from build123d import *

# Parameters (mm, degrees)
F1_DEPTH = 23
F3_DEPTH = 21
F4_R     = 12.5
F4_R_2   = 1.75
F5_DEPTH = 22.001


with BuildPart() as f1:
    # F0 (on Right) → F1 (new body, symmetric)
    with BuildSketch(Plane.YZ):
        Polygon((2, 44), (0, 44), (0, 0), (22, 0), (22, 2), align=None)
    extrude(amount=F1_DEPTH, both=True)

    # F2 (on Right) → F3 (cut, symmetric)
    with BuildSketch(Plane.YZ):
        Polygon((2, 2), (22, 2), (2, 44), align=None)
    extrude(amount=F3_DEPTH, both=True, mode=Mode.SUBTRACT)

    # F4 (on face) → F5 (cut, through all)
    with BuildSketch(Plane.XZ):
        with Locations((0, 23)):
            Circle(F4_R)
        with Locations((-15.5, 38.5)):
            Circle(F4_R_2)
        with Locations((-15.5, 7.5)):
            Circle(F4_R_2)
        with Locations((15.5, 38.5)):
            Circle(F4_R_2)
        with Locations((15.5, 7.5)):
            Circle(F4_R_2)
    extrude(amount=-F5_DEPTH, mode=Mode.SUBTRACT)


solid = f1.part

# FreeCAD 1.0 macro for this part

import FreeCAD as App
import Part
import Sketcher
from FreeCAD import Vector


def add_polygon(sketch, points):
    """Adds a closed chain of lines whose ends are joined by coincident constraints."""
    first, n = sketch.GeometryCount, len(points)
    for a, b in zip(points, points[1:] + points[:1]):
        sketch.addGeometry(Part.LineSegment(App.Vector(*a, 0), App.Vector(*b, 0)), False)
    for i in range(n):
        sketch.addConstraint(Sketcher.Constraint("Coincident", first + i, 2, first + (i + 1) % n, 1))

doc = App.newDocument("Part")
body = doc.addObject("PartDesign::Body", "Body")

# Sketch on YZ plane
sketch1 = doc.addObject("Sketcher::SketchObject", "Sketch")
body.addObject(sketch1)
sketch1.AttachmentSupport = (doc.YZ_Plane, [""])
sketch1.MapMode = "FlatFace"
add_polygon(sketch1, [(2, 44), (0, 44), (0, 0), (22, 0), (22, 2)])  # lines 0-4
sketch1.addConstraint([
    Sketcher.Constraint("Horizontal", 0),
    Sketcher.Constraint("Vertical", 1),
    Sketcher.Constraint("Horizontal", 2),
    Sketcher.Constraint("Vertical", 3),
    Sketcher.Constraint("Coincident", 1, 2, -1, 1),
    Sketcher.Constraint("Equal", 0, 3),
    Sketcher.Constraint("DistanceX", 0, 2, 0, 1, 2.0),
    Sketcher.Constraint("DistanceX", 2, 1, 2, 2, 22.0),
    Sketcher.Constraint("DistanceY", 1, 2, 1, 1, 44.0),
])
pad1 = doc.addObject("PartDesign::Pad", "Pad")
body.addObject(pad1)
pad1.Profile = sketch1
pad1.Length = 46
pad1.Midplane = True

# Sketch on YZ plane
sketch2 = doc.addObject("Sketcher::SketchObject", "Sketch001")
body.addObject(sketch2)
sketch2.AttachmentSupport = (doc.YZ_Plane, [""])
sketch2.MapMode = "FlatFace"
add_polygon(sketch2, [(2, 2), (22, 2), (2, 44)])  # lines 0-2
sketch2.addConstraint([
    Sketcher.Constraint("Horizontal", 0),
    Sketcher.Constraint("Vertical", 2),
    Sketcher.Constraint("DistanceX", 0, 1, 0, 2, 20.0),
    Sketcher.Constraint("DistanceY", 2, 2, 2, 1, 42.0),
    Sketcher.Constraint("DistanceX", -1, 1, 0, 2, 22.0),
    Sketcher.Constraint("DistanceY", -1, 1, 0, 2, 2.0),
])
pocket1 = doc.addObject("PartDesign::Pocket", "Pocket")
body.addObject(pocket1)
pocket1.Profile = sketch2
pocket1.Length = 42
pocket1.Midplane = True

# Sketch on XZ plane
sketch3 = doc.addObject("Sketcher::SketchObject", "Sketch002")
body.addObject(sketch3)
sketch3.AttachmentSupport = (doc.XZ_Plane, [""])
sketch3.MapMode = "FlatFace"
sketch3.addGeometry([
    Part.Circle(Vector(0, 23, 0), Vector(0, 0, 1), 12.5),  # 0
    Part.Circle(Vector(-15.5, 38.5, 0), Vector(0, 0, 1), 1.75),  # 1
    Part.Circle(Vector(-15.5, 7.5, 0), Vector(0, 0, 1), 1.75),  # 2
    Part.Circle(Vector(15.5, 38.5, 0), Vector(0, 0, 1), 1.75),  # 3
    Part.Circle(Vector(15.5, 7.5, 0), Vector(0, 0, 1), 1.75),  # 4
], False)
sketch3.addConstraint([
    Sketcher.Constraint("Equal", 1, 2),
    Sketcher.Constraint("Equal", 2, 3),
    Sketcher.Constraint("Equal", 3, 4),
    Sketcher.Constraint("Symmetric", 1, 3, 3, 3, -2),
    Sketcher.Constraint("Symmetric", 2, 3, 4, 3, -2),
    Sketcher.Constraint("PointOnObject", 0, 3, -2),
    Sketcher.Constraint("Vertical", 1, 3, 2, 3),
    Sketcher.Constraint("Diameter", 0, 25.0),
    Sketcher.Constraint("Diameter", 1, 3.5),
    Sketcher.Constraint("DistanceY", -1, 1, 0, 3, 23.0),
    Sketcher.Constraint("DistanceY", 2, 3, 1, 3, 31.0),
    Sketcher.Constraint("DistanceX", 1, 3, 3, 3, 31.0),
    Sketcher.Constraint("DistanceY", -1, 1, 1, 3, 38.5),
])
pocket2 = doc.addObject("PartDesign::Pocket", "Pocket001")
body.addObject(pocket2)
pocket2.Profile = sketch3
pocket2.Type = "ThroughAll"

doc.recompute()
